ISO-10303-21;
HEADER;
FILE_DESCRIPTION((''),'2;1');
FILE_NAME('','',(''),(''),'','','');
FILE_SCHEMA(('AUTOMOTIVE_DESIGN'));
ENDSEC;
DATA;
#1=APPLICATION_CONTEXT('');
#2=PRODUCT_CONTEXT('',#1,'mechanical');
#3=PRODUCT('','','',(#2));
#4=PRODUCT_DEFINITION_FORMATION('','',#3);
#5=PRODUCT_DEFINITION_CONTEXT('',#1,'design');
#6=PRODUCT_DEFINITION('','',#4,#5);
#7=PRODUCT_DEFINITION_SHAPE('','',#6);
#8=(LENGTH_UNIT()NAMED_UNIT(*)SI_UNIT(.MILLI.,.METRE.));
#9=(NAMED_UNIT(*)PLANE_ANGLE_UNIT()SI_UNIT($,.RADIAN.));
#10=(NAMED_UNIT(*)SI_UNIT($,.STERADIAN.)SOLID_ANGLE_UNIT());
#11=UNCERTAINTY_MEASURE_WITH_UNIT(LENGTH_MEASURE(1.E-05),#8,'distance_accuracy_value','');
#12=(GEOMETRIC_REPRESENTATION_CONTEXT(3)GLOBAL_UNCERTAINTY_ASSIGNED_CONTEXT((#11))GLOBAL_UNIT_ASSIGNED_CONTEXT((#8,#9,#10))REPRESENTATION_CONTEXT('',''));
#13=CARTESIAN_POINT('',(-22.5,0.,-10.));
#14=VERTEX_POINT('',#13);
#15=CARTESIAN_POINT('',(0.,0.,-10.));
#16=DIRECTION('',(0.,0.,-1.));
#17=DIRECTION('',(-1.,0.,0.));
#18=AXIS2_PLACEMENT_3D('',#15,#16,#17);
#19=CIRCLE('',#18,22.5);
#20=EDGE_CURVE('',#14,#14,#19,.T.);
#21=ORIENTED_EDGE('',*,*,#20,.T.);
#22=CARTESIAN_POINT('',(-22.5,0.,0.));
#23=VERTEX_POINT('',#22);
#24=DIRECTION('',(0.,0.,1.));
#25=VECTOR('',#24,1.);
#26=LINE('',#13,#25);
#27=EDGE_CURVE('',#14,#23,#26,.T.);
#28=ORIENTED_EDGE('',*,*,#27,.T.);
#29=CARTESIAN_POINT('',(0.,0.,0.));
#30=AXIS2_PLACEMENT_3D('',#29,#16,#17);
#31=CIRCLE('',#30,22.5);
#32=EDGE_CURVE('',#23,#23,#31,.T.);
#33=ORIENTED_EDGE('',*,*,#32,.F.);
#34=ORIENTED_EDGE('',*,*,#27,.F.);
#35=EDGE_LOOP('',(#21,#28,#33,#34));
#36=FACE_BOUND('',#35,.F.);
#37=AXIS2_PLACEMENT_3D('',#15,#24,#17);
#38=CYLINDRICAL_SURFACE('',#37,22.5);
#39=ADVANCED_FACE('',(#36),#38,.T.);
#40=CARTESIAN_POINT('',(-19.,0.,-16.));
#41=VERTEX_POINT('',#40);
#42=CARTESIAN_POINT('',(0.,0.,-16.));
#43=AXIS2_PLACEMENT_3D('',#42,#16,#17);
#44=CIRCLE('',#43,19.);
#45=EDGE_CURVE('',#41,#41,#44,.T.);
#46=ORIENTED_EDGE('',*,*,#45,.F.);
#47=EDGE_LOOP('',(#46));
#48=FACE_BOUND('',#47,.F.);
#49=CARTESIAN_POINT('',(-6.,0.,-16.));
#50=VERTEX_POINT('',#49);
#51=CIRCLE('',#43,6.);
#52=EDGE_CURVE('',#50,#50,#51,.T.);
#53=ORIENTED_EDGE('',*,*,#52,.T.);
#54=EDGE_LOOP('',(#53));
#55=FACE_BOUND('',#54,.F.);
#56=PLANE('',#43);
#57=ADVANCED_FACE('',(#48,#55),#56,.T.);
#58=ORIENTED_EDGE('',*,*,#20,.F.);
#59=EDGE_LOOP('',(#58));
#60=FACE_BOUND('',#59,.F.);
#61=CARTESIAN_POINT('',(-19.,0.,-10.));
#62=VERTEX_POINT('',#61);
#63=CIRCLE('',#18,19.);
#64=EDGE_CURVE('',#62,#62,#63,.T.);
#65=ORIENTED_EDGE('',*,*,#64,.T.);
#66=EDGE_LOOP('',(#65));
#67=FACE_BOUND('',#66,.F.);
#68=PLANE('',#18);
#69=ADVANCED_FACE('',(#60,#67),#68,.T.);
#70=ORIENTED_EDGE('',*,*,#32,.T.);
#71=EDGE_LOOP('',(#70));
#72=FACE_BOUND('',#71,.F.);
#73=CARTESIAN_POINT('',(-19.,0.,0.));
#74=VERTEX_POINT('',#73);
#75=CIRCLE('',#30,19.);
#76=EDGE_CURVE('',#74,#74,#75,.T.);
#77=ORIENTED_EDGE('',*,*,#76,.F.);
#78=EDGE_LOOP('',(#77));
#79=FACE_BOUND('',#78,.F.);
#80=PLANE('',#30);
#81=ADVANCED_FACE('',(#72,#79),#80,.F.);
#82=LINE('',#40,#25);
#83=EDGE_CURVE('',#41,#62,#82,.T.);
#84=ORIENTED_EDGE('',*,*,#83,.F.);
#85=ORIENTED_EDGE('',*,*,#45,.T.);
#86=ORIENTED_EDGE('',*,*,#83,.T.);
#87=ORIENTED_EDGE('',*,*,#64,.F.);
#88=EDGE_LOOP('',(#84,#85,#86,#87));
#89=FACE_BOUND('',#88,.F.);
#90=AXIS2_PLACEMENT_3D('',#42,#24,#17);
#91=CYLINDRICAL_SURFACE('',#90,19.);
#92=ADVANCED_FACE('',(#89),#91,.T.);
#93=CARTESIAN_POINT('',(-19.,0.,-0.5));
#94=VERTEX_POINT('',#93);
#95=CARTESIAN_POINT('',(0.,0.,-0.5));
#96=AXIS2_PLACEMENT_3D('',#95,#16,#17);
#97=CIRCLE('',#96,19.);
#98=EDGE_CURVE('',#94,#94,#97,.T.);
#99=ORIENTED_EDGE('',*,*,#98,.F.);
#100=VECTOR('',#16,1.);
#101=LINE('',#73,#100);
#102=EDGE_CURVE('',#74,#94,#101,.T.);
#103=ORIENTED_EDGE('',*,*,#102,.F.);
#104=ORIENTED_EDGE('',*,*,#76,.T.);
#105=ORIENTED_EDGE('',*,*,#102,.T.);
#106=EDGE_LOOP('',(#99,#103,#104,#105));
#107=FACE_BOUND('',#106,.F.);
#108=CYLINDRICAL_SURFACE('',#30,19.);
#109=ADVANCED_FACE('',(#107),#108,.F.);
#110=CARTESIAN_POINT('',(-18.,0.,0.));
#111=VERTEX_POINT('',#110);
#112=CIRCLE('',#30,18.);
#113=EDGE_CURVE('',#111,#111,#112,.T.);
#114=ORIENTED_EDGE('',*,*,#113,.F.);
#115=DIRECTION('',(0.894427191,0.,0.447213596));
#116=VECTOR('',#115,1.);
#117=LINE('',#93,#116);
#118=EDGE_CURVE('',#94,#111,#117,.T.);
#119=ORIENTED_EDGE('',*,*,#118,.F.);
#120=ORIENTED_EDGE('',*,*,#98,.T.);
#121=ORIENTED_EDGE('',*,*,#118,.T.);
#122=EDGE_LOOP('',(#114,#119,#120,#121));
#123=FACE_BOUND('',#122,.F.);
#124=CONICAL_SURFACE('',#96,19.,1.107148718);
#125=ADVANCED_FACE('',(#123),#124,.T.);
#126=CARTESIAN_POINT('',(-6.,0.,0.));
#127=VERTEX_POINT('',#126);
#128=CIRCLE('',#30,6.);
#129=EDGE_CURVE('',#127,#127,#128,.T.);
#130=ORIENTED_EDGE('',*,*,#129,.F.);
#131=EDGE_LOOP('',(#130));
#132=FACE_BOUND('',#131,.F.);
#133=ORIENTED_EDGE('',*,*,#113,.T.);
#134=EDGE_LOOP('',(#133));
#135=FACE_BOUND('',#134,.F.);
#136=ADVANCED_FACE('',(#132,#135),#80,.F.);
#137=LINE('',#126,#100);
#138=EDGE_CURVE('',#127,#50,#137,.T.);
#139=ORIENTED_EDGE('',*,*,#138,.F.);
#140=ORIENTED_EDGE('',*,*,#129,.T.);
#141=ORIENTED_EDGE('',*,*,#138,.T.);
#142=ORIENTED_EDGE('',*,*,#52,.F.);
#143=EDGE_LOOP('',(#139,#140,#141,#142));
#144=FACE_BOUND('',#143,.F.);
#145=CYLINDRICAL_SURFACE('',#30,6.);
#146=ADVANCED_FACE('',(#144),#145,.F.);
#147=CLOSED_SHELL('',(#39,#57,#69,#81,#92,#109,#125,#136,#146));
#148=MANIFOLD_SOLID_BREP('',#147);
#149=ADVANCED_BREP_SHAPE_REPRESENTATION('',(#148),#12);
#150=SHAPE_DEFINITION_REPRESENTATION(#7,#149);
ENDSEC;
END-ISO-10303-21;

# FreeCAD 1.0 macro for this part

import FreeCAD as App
import Part
import Sketcher

V = App.Vector
Q = App.Units.Quantity

doc = App.newDocument("Part")
body = doc.addObject("PartDesign::Body", "Body")

# Sketch on XZ plane
sketch1 = body.newObject("Sketcher::SketchObject", "Sketch")
sketch1.AttachmentSupport = (doc.getObject("XZ_Plane"), [""])
sketch1.MapMode = "FlatFace"
sketch1.addGeometry([
    Part.LineSegment(V(-18, 0, 0), V(-6, 0, 0)),  # 0
    Part.LineSegment(V(-6, 0, 0), V(-6, -16, 0)),  # 1
    Part.LineSegment(V(-6, -16, 0), V(-19, -16, 0)),  # 2
    Part.LineSegment(V(-19, -16, 0), V(-19, -10, 0)),  # 3
    Part.LineSegment(V(-19, -10, 0), V(-22.5, -10, 0)),  # 4
    Part.LineSegment(V(-22.5, -10, 0), V(-22.5, 0, 0)),  # 5
    Part.LineSegment(V(-22.5, 0, 0), V(-19, 0, 0)),  # 6
    Part.LineSegment(V(-19, 0, 0), V(-19, -0.5, 0)),  # 7
    Part.LineSegment(V(-19, -0.5, 0), V(-18, 0, 0)),  # 8
], False)
sketch1.addConstraint([
    Sketcher.Constraint("Coincident", 0, 2, 1, 1),
    Sketcher.Constraint("Coincident", 1, 2, 2, 1),
    Sketcher.Constraint("Coincident", 2, 2, 3, 1),
    Sketcher.Constraint("Coincident", 3, 2, 4, 1),
    Sketcher.Constraint("Coincident", 4, 2, 5, 1),
    Sketcher.Constraint("Coincident", 5, 2, 6, 1),
    Sketcher.Constraint("Coincident", 6, 2, 7, 1),
    Sketcher.Constraint("Coincident", 7, 2, 8, 1),
    Sketcher.Constraint("Coincident", 8, 2, 0, 1),
    Sketcher.Constraint("Horizontal", 0),
    Sketcher.Constraint("Vertical", 1),
    Sketcher.Constraint("Horizontal", 2),
    Sketcher.Constraint("Vertical", 3),
    Sketcher.Constraint("Horizontal", 4),
    Sketcher.Constraint("Vertical", 5),
    Sketcher.Constraint("Horizontal", 6),
    Sketcher.Constraint("Vertical", 7),
    Sketcher.Constraint("PointOnObject", 0, 2, -1),
    Sketcher.Constraint("PointOnObject", 5, 2, -1),
    Sketcher.Constraint("Vertical", 3, 2, 6, 2),
    Sketcher.Constraint("DistanceX", 0, 1, 0, 2, Q("12 mm")),
    Sketcher.Constraint("DistanceY", 1, 2, 1, 1, Q("16 mm")),
    Sketcher.Constraint("DistanceY", 5, 1, 5, 2, Q("10 mm")),
    Sketcher.Constraint("DistanceY", 7, 2, 7, 1, Q("0.5 mm")),
    Sketcher.Constraint("DistanceX", 6, 2, 8, 2, Q("1 mm")),
    Sketcher.Constraint("DistanceX", 4, 2, 4, 1, Q("3.5 mm")),
    Sketcher.Constraint("DistanceX", 0, 2, -1, 1, Q("6 mm")),
])
revolution = body.newObject("PartDesign::Revolution", "Revolution")
revolution.Profile = sketch1
revolution.ReferenceAxis = (sketch1, ["V_Axis"])
revolution.Angle = 360

doc.recompute()
